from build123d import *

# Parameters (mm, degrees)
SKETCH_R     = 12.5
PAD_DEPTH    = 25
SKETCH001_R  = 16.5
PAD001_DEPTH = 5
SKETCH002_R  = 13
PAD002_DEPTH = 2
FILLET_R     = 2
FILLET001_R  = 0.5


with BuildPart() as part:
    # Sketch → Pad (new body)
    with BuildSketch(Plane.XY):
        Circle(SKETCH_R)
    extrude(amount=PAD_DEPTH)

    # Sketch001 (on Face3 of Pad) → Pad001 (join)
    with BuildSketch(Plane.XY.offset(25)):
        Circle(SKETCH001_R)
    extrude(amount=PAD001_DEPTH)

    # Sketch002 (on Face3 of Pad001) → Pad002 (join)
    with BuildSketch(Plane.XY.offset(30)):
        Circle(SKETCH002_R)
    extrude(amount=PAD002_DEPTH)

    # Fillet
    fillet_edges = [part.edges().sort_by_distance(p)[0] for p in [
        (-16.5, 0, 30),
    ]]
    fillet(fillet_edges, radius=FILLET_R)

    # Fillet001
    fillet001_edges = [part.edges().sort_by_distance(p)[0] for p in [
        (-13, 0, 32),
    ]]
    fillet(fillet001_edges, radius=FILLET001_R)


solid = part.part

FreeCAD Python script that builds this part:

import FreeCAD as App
import Part
import Sketcher

V = App.Vector


def edges_at(feature, points):
    """Names of the edges that pass closest to the given points."""
    edges = feature.Shape.Edges
    near = lambda p: min(range(len(edges)), key=lambda i: edges[i].distToShape(Part.Vertex(*p))[0])
    return sorted({f"Edge{near(p) + 1}" for p in points})

doc = App.newDocument("Part")
body = doc.addObject("PartDesign::Body", "Body")

# Sketch on XY plane
sketch1 = body.newObject("Sketcher::SketchObject", "Sketch")
sketch1.AttachmentSupport = (doc.getObject("XY_Plane"), [""])
sketch1.MapMode = "FlatFace"
sketch1.addGeometry(Part.Circle(V(0, 0, 0), V(0, 0, 1), 12), False)
sketch1.addConstraint([
    Sketcher.Constraint("Coincident", 0, 3, -1, 1),
    Sketcher.Constraint("Diameter", 0, 25.0),
])
pad1 = body.newObject("PartDesign::Pad", "Pad")
pad1.Profile = sketch1
pad1.Length = 25

# Sketch on XY plane
sketch2 = body.newObject("Sketcher::SketchObject", "Sketch001")
sketch2.AttachmentSupport = (doc.getObject("XY_Plane"), [""])
sketch2.MapMode = "FlatFace"
sketch2.AttachmentOffset = App.Placement(V(0, 0, 25), App.Rotation())
sketch2.addGeometry(Part.Circle(V(0, 0, 0), V(0, 0, 1), 16), False)
sketch2.addConstraint([
    Sketcher.Constraint("Coincident", 0, 3, -1, 1),
    Sketcher.Constraint("Diameter", 0, 33.0),
])
pad2 = body.newObject("PartDesign::Pad", "Pad001")
pad2.Profile = sketch2
pad2.Length = 5

# Sketch on XY plane
sketch3 = body.newObject("Sketcher::SketchObject", "Sketch002")
sketch3.AttachmentSupport = (doc.getObject("XY_Plane"), [""])
sketch3.MapMode = "FlatFace"
sketch3.AttachmentOffset = App.Placement(V(0, 0, 30), App.Rotation())
sketch3.addGeometry(Part.Circle(V(0, 0, 0), V(0, 0, 1), 13), False)
sketch3.addConstraint([
    Sketcher.Constraint("Coincident", 0, 3, -1, 1),
    Sketcher.Constraint("Diameter", 0, 26.0),
])
pad3 = body.newObject("PartDesign::Pad", "Pad002")
pad3.Profile = sketch3
pad3.Length = 2
doc.recompute()

fillet = body.newObject("PartDesign::Fillet", "Fillet")
fillet.Base = (pad3, edges_at(pad3, [(-16.5, 0, 30)]))
fillet.Radius = 2
doc.recompute()

fillet2 = body.newObject("PartDesign::Fillet", "Fillet001")
fillet2.Base = (fillet, edges_at(fillet, [(-13, 0, 32)]))
fillet2.Radius = 0.5

doc.recompute()
